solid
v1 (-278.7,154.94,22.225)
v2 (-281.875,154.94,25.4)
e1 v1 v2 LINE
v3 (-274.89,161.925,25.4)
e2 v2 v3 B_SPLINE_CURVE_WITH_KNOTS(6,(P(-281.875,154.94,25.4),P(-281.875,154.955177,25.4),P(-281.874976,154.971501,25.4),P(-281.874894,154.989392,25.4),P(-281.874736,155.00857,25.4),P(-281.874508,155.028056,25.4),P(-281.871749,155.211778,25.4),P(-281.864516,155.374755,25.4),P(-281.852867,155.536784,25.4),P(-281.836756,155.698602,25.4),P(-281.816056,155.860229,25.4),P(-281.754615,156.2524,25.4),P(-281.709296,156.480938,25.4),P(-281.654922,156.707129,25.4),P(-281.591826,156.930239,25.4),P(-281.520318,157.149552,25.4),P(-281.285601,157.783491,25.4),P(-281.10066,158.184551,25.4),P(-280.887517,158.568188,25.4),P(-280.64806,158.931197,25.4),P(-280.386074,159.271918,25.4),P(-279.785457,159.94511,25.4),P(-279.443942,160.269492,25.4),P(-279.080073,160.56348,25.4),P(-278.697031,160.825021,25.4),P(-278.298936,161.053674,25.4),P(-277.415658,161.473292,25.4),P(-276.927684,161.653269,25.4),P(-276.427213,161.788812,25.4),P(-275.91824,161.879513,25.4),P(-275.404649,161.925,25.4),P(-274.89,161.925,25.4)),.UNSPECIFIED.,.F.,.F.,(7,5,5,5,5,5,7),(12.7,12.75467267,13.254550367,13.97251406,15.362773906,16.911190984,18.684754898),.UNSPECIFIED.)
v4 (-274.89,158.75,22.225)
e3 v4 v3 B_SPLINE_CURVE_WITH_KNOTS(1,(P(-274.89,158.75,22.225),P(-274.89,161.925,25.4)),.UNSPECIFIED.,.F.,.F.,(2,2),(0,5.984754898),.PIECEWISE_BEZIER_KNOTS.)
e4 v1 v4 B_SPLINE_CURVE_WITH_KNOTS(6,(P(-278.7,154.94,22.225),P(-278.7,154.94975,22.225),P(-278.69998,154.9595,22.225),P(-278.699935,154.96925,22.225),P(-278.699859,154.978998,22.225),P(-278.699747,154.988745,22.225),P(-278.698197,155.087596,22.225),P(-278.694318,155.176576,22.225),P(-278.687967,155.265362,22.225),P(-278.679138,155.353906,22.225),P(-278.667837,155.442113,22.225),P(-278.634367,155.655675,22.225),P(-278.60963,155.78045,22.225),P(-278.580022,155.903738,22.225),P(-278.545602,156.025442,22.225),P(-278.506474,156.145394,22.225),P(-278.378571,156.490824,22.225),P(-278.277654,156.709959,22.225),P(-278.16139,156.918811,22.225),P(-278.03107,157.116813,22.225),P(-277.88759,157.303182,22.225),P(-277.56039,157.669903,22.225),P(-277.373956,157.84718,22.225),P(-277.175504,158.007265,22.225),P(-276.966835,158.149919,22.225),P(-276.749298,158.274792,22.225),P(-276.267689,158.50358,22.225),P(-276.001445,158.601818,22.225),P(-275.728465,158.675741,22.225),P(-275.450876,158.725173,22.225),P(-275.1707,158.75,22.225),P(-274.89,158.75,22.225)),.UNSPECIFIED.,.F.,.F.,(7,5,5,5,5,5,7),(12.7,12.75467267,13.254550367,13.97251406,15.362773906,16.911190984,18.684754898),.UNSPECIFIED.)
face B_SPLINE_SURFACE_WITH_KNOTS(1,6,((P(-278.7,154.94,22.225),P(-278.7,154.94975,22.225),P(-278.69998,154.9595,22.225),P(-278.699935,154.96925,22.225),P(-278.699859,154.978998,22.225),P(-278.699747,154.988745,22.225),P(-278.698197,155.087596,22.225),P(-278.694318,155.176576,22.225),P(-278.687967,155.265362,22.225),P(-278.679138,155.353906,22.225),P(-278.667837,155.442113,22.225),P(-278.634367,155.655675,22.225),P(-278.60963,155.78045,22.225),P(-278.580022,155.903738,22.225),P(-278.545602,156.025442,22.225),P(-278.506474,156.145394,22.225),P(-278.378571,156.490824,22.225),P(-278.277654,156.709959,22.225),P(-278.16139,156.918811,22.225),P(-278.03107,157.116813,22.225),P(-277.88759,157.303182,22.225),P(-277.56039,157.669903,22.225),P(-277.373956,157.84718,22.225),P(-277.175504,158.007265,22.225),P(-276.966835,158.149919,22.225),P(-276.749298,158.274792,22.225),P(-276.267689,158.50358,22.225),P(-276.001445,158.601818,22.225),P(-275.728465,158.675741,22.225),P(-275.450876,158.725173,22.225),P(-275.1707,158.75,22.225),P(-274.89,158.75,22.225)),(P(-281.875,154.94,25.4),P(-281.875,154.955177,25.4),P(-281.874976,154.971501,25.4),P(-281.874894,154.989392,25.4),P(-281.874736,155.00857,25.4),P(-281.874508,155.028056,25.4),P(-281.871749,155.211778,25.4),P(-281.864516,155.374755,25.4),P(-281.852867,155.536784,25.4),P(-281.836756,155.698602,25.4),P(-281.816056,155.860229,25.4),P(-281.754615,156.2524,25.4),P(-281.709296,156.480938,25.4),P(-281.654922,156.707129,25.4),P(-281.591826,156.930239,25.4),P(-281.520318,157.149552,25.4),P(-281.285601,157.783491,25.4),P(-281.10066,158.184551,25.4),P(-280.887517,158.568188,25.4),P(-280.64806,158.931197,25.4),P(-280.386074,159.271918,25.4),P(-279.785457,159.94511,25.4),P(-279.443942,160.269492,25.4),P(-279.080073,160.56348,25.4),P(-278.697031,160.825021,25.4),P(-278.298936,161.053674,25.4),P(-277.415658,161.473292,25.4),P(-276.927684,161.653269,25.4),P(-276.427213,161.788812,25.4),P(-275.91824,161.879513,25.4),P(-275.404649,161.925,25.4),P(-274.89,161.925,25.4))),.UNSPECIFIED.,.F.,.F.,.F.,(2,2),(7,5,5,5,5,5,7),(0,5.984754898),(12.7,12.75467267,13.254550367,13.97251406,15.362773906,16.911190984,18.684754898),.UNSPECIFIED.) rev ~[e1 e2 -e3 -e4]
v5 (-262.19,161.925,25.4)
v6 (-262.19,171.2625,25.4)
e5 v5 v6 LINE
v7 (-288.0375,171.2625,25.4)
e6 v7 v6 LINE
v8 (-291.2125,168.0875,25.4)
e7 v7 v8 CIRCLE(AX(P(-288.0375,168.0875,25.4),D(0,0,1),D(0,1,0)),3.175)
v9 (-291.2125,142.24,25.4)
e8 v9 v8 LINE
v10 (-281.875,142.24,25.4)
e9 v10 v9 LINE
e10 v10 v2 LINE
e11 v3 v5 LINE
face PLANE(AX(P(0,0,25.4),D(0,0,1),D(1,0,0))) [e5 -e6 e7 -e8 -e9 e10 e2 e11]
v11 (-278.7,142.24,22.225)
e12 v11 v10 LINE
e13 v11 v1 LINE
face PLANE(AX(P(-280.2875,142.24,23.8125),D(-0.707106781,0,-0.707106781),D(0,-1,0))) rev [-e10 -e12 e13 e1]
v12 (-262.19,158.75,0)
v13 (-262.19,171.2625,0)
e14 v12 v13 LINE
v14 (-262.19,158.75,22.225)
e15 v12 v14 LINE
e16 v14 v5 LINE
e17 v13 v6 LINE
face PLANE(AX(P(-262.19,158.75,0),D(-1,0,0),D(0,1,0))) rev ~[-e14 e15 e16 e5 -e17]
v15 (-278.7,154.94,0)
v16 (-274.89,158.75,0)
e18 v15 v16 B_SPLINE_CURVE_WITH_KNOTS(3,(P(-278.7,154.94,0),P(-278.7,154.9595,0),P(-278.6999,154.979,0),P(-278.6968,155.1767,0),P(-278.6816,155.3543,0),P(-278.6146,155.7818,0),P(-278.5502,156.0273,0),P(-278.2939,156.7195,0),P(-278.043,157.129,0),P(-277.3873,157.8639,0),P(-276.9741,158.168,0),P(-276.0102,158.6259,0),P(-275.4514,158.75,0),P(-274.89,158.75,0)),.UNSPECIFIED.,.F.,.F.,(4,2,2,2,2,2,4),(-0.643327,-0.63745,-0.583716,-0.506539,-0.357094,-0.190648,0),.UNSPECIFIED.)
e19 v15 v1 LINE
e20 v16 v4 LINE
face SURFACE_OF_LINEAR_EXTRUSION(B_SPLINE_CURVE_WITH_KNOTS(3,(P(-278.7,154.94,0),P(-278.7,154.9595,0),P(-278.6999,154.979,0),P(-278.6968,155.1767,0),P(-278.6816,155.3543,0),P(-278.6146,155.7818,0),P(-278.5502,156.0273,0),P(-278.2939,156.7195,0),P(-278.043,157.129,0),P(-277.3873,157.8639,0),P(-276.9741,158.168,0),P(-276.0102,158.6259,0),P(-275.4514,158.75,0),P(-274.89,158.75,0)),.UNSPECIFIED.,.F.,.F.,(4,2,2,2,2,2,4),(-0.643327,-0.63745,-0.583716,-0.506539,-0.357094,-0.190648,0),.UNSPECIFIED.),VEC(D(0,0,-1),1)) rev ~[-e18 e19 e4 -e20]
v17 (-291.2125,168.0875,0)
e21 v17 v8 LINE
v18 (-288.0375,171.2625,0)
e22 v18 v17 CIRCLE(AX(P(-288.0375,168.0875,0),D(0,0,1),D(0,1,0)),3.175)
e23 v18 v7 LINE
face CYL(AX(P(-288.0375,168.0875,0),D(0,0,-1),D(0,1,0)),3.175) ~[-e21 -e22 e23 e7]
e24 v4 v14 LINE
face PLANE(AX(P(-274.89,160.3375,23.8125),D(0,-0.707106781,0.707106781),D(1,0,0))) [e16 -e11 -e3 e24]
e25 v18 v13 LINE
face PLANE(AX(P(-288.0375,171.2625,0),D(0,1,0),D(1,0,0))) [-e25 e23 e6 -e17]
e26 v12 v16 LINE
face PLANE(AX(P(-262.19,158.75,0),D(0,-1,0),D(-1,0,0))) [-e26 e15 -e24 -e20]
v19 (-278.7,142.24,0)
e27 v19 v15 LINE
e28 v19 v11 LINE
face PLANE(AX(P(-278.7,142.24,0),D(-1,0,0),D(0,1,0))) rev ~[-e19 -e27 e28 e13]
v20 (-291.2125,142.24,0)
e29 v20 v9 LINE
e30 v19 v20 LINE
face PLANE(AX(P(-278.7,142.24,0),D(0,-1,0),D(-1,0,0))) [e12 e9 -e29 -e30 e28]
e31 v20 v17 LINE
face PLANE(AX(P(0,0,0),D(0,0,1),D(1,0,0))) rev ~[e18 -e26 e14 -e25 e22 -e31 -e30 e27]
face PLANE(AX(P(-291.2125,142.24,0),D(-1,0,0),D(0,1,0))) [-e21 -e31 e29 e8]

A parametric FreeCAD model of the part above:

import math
import FreeCAD as App
import Part
import Sketcher
from FreeCAD import Vector
Q = App.Units.Quantity


def edges_at(feature, points):
    """Names of the edges that pass closest to the given points."""
    edges = feature.Shape.Edges
    near = lambda p: min(range(len(edges)), key=lambda i: edges[i].distToShape(Part.Vertex(*p))[0])
    return sorted({f"Edge{near(p) + 1}" for p in points})

doc = App.newDocument("Part")
body = doc.addObject("PartDesign::Body", "Body")

# Sketch on XY plane
sketch1 = body.newObject("Sketcher::SketchObject", "Sketch")
sketch1.AttachmentSupport = (doc.getObject("XY_Plane"), [""])
sketch1.MapMode = "FlatFace"
sketch1.addGeometry(Part.LineSegment(Vector(-291.2125, 168.0875, 0), Vector(-291.2125, 142.24, 0)), False)
sketch1.addGeometry(Part.LineSegment(Vector(-291.2125, 142.24, 0), Vector(-278.7, 142.24, 0)), False)
sketch1.addGeometry(Part.LineSegment(Vector(-278.7, 142.24, 0), Vector(-278.7, 154.94, 0)), False)
sketch1.addGeometry(Part.BSplineCurve([Vector(-278.7, 154.94, 0), Vector(-278.7, 154.9595, 0), Vector(-278.6999, 154.979, 0), Vector(-278.6968, 155.1767, 0), Vector(-278.6816, 155.3543, 0), Vector(-278.6146, 155.7818, 0), Vector(-278.5502, 156.0273, 0), Vector(-278.2939, 156.7195, 0), Vector(-278.043, 157.129, 0), Vector(-277.3873, 157.8639, 0), Vector(-276.9741, 158.168, 0), Vector(-276.0102, 158.6259, 0), Vector(-275.4514, 158.75, 0), Vector(-274.89, 158.75, 0)], [4, 2, 2, 2, 2, 2, 4], [-0.643327, -0.63745, -0.583716, -0.506539, -0.357094, -0.190648, 0], False, 3, [1, 1, 1, 1, 1, 1, 1, 1, 1, 1, 1, 1, 1, 1], False), False)
sketch1.addGeometry(Part.LineSegment(Vector(-274.89, 158.75, 0), Vector(-262.19, 158.75, 0)), False)
sketch1.addGeometry(Part.LineSegment(Vector(-262.19, 158.75, 0), Vector(-262.19, 171.2625, 0)), False)
sketch1.addGeometry(Part.LineSegment(Vector(-262.19, 171.2625, 0), Vector(-288.0375, 171.2625, 0)), False)
sketch1.addGeometry(Part.ArcOfCircle(Part.Circle(Vector(-288.0375, 168.0875, 0), Vector(0, 0, 1), 3.175), math.radians(90), math.radians(180)), False)
sketch1.addConstraint(Sketcher.Constraint("Block", 3))
sketch1.addConstraint(Sketcher.Constraint("Coincident", 0, 2, 1, 1))
sketch1.addConstraint(Sketcher.Constraint("Coincident", 1, 2, 2, 1))
sketch1.addConstraint(Sketcher.Constraint("Coincident", 2, 2, 3, 1))
sketch1.addConstraint(Sketcher.Constraint("Coincident", 3, 2, 4, 1))
sketch1.addConstraint(Sketcher.Constraint("Coincident", 4, 2, 5, 1))
sketch1.addConstraint(Sketcher.Constraint("Coincident", 5, 2, 6, 1))
sketch1.addConstraint(Sketcher.Constraint("Tangent", 6, 2, 7, 1))
sketch1.addConstraint(Sketcher.Constraint("Tangent", 7, 2, 0, 1))
sketch1.addConstraint(Sketcher.Constraint("Vertical", 0))
sketch1.addConstraint(Sketcher.Constraint("Horizontal", 1))
sketch1.addConstraint(Sketcher.Constraint("Vertical", 2))
sketch1.addConstraint(Sketcher.Constraint("Horizontal", 4))
sketch1.addConstraint(Sketcher.Constraint("Vertical", 5))
sketch1.addConstraint(Sketcher.Constraint("Horizontal", 6))
sketch1.addConstraint(Sketcher.Constraint("Equal", 6, 0))
sketch1.addConstraint(Sketcher.Constraint("Equal", 4, 2))
sketch1.addConstraint(Sketcher.Constraint("DistanceX", 4, 1, 4, 2, Q("0.5 in")))
sketch1.addConstraint(Sketcher.Constraint("Radius", 7, Q("0.125 in")))
sketch1.addConstraint(Sketcher.Constraint("DistanceX", 1, 1, 1, 2, 12.5125))
pad1 = body.newObject("PartDesign::Pad", "Pad")
pad1.Profile = sketch1
pad1.Length = Q("1 in")
doc.recompute()

chamfer = body.newObject("PartDesign::Chamfer", "Chamfer")
chamfer.Base = (pad1, edges_at(pad1, [(-277.503, 157.713, 25.4), (-268.54, 158.75, 25.4), (-278.7, 148.59, 25.4)]))
chamfer.Size = Q("0.125 in")

doc.recompute()
